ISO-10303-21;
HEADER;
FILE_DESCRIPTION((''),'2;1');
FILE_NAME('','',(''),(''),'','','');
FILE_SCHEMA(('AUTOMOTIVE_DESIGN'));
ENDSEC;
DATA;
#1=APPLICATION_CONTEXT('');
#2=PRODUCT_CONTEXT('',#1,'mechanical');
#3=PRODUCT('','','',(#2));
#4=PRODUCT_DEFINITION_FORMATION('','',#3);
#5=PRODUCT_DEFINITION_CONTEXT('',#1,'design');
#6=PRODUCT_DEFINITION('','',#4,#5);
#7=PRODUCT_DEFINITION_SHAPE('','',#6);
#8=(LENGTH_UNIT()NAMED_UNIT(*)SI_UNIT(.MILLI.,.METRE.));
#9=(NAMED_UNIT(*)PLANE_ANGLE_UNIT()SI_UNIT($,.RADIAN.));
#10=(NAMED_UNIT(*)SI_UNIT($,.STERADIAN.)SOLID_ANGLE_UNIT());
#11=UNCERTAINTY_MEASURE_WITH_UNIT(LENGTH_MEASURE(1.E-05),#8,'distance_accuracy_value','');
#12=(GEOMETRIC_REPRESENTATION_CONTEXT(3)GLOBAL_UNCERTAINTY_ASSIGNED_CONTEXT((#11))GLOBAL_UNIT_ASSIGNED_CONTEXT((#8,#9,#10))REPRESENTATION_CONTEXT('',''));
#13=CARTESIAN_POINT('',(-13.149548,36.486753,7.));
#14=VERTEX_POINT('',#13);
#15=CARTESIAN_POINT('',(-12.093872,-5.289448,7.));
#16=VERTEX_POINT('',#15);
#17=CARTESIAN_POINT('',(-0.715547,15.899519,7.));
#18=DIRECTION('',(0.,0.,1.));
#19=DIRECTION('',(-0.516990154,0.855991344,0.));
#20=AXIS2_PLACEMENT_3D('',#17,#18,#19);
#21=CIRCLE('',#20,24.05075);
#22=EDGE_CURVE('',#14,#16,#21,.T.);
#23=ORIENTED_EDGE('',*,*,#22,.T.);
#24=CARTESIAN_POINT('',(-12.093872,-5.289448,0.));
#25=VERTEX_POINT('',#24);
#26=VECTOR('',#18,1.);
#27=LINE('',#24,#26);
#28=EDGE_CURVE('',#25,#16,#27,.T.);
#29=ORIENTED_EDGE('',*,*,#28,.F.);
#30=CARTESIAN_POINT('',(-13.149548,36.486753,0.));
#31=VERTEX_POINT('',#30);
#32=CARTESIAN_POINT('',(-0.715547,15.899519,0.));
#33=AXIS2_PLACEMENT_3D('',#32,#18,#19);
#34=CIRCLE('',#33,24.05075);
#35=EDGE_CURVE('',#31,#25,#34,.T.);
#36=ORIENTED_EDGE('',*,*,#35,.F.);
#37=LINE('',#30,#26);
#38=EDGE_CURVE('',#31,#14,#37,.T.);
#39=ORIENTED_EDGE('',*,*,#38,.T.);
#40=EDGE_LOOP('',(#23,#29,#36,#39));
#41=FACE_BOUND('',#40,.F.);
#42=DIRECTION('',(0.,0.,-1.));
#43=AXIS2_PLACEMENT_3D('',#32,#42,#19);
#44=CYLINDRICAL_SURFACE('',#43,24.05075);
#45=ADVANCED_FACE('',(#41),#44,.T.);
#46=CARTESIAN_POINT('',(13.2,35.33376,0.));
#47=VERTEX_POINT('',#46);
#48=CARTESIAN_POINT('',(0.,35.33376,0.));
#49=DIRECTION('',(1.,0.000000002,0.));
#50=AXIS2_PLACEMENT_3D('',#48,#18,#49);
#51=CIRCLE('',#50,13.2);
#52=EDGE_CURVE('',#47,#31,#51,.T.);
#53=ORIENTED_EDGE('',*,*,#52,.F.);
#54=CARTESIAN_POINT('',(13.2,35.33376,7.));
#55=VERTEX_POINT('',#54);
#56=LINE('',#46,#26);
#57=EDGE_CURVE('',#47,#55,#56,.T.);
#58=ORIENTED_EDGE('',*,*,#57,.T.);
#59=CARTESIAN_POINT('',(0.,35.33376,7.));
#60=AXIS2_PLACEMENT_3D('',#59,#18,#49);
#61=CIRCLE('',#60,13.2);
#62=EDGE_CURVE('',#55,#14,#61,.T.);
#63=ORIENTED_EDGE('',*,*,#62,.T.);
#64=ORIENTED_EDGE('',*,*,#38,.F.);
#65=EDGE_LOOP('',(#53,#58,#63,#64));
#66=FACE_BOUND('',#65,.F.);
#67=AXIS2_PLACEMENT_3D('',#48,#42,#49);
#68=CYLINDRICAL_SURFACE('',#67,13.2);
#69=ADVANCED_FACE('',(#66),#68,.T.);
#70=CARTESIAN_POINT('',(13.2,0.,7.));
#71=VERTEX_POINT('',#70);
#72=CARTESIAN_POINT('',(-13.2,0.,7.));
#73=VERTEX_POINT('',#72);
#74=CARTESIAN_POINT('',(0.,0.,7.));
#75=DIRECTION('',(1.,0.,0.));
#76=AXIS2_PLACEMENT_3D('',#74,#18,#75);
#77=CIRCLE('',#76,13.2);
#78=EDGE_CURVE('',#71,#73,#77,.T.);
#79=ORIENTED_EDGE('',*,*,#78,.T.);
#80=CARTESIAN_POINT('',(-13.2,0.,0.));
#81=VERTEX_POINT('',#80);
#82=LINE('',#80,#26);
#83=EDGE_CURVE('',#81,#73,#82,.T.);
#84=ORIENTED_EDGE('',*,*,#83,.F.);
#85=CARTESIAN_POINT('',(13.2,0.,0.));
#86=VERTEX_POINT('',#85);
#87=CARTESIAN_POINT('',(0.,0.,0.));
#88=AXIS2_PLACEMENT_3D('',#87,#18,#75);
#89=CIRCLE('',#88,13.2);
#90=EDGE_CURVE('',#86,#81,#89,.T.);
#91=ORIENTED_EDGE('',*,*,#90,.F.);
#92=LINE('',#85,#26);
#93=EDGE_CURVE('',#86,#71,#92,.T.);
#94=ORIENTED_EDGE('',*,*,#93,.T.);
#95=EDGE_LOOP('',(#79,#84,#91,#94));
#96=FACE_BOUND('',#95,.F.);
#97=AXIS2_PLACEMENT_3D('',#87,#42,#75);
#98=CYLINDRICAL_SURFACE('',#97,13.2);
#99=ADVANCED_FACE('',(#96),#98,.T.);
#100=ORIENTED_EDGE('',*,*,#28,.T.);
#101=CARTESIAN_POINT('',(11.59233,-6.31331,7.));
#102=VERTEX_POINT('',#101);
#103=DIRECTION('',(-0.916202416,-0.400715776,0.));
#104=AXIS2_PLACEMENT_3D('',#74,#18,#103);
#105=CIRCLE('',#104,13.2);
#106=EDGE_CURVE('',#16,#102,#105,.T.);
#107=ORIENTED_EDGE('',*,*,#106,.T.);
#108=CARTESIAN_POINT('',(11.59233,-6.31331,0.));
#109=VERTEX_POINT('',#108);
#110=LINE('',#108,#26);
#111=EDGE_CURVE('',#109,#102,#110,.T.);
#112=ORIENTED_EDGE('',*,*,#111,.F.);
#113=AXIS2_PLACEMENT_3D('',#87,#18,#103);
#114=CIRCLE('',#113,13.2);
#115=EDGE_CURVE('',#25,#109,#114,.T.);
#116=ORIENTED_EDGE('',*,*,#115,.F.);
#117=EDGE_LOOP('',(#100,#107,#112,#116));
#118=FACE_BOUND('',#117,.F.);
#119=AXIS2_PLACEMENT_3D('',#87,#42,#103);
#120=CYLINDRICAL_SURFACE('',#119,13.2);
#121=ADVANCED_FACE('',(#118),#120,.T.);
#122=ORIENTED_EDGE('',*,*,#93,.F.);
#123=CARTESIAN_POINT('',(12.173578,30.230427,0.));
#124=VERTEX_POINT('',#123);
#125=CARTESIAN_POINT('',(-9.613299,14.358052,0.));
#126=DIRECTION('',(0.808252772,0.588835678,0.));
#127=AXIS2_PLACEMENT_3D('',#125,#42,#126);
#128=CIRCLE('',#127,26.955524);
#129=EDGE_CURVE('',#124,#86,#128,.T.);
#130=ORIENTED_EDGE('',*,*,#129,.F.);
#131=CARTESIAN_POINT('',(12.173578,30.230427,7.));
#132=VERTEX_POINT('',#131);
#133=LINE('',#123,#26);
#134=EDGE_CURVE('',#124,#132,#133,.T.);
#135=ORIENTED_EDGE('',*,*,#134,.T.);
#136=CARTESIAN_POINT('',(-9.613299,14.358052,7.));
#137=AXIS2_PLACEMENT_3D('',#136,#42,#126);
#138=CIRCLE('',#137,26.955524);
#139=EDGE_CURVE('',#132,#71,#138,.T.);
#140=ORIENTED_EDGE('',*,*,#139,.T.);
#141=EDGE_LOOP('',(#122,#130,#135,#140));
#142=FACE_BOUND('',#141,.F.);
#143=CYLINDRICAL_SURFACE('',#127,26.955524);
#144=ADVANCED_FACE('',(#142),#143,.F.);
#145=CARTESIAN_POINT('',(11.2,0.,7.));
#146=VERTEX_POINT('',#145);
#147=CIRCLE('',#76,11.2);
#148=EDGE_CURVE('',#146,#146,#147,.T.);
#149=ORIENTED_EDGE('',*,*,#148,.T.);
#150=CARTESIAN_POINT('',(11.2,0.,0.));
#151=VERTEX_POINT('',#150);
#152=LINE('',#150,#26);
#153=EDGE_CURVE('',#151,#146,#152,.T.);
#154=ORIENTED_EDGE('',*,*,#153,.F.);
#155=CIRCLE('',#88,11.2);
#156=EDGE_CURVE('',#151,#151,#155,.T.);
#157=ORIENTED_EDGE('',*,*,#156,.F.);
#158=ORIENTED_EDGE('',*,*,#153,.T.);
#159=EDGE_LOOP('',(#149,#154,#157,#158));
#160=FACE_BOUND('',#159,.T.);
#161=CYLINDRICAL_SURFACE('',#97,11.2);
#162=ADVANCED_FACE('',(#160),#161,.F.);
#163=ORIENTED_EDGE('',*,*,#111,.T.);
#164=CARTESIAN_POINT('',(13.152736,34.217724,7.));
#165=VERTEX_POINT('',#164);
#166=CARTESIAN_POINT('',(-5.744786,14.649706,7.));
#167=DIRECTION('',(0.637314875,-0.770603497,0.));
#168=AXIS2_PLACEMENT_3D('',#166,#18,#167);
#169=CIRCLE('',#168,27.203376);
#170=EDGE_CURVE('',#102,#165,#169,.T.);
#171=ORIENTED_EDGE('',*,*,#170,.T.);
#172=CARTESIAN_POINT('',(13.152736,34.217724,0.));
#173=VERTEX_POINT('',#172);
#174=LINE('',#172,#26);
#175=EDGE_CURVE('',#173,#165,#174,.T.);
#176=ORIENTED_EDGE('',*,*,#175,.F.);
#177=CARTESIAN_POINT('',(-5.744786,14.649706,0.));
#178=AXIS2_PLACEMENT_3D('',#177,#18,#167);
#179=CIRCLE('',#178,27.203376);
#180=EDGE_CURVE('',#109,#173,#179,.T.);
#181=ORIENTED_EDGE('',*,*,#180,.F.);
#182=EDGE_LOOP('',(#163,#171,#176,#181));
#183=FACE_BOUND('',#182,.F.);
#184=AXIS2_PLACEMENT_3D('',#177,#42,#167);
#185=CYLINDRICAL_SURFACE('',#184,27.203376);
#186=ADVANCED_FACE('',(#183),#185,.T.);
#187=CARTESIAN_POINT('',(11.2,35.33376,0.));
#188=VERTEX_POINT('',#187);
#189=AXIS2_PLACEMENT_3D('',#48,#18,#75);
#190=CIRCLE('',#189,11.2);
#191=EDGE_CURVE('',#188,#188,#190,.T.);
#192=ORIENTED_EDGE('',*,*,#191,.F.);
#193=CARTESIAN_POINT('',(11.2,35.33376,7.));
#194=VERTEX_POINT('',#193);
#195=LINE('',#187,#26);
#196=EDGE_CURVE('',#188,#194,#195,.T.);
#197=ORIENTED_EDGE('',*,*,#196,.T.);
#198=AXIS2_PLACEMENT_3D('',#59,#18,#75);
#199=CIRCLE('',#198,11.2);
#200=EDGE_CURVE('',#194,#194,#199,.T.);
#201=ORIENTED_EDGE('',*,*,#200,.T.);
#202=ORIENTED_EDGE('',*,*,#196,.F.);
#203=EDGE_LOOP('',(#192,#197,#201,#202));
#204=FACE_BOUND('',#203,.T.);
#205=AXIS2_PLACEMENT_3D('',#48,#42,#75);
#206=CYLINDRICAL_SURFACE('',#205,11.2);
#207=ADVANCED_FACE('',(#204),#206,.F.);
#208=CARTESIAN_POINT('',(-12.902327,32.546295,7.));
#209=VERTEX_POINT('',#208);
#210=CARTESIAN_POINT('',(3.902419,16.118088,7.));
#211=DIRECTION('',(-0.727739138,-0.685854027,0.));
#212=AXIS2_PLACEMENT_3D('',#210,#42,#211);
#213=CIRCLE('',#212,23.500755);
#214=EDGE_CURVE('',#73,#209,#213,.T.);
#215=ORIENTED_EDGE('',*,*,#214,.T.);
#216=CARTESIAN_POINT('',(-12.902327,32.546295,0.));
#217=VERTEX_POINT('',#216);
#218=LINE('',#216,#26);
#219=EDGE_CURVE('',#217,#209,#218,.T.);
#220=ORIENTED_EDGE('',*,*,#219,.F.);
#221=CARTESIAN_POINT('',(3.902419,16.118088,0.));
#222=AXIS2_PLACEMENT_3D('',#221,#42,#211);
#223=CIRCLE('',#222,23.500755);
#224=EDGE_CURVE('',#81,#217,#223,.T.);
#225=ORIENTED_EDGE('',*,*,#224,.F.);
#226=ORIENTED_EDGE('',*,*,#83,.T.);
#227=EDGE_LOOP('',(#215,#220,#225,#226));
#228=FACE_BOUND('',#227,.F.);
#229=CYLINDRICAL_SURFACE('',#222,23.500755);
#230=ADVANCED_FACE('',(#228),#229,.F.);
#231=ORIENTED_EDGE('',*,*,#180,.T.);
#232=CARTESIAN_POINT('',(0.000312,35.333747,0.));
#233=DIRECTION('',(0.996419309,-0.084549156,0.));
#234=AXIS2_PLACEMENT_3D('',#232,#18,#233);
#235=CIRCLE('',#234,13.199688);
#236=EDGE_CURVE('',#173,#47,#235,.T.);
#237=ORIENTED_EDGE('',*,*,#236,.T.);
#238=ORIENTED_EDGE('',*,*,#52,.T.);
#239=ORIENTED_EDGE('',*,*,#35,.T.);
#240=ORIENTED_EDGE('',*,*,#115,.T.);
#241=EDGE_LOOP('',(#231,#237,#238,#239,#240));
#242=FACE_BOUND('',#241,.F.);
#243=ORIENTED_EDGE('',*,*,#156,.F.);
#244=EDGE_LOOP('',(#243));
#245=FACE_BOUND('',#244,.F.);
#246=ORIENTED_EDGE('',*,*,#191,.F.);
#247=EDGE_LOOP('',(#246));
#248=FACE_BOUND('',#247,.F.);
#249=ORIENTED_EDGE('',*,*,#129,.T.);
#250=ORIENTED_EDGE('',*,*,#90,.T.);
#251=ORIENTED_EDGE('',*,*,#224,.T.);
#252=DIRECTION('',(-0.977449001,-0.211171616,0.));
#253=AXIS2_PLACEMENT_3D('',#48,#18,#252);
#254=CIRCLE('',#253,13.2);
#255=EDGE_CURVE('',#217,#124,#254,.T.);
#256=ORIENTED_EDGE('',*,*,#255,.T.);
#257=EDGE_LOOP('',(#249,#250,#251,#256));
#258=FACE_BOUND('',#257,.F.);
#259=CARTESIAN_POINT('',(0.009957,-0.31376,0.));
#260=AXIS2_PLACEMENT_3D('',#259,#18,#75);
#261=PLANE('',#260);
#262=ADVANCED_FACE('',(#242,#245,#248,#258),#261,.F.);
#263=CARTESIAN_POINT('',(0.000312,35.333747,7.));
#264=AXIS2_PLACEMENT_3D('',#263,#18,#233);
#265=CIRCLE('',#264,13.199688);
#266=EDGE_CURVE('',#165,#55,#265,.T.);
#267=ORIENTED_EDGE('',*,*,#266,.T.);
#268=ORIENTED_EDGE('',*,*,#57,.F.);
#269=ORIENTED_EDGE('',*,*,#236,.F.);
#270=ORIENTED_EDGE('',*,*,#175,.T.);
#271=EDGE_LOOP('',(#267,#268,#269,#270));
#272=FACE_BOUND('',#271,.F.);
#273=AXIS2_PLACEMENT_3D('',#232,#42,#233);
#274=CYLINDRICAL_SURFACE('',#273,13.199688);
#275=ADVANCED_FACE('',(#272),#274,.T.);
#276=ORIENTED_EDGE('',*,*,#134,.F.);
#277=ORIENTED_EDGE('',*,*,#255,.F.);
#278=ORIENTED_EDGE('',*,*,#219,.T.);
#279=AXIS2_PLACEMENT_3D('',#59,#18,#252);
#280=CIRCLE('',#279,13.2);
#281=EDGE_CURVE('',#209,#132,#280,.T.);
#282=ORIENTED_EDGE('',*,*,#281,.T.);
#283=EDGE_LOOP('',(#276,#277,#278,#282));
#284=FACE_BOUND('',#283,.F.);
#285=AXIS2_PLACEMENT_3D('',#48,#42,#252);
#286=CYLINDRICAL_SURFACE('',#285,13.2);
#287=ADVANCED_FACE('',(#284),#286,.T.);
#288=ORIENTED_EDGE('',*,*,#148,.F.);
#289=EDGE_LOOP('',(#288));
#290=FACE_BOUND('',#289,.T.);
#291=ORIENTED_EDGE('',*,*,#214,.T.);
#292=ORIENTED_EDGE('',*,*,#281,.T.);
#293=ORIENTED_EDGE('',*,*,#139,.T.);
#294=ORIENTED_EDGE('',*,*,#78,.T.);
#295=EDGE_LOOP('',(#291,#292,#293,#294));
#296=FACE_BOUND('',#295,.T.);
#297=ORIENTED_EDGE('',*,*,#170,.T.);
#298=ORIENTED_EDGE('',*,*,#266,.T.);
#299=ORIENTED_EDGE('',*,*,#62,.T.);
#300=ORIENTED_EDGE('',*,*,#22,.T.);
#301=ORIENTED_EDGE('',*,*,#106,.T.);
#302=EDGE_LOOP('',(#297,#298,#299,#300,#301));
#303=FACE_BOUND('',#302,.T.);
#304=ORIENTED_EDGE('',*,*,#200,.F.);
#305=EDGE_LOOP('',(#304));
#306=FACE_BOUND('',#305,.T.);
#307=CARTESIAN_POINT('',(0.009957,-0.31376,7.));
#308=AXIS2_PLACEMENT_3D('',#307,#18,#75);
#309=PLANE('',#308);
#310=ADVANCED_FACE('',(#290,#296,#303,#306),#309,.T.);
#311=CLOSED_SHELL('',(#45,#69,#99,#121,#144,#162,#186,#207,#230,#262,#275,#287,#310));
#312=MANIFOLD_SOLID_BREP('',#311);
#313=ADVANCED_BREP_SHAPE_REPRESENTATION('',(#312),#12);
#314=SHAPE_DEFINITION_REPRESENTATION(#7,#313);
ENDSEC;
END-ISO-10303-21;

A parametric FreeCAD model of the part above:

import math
import FreeCAD as App
import Part
import Sketcher
Q = App.Units.Quantity

doc = App.newDocument("Part")
params = doc.addObject("Spreadsheet::Sheet", "Params")
for row, (alias, value) in enumerate([
    ("sketch1_diameter", "22.4 mm"),
    ("sketch1_diameter2", "22.4 mm"),
    ("sketch1_radius", "13.2 mm"),
    ("sketch1_radius2", "13.2 mm"),
    ("sketch1_radius3", "13.2 mm"),
    ("pad1_length", "7 mm"),
], start=1):
    params.set(f"A{row}", alias)
    params.set(f"B{row}", "=" + value)
    params.setAlias(f"B{row}", alias)

body = doc.addObject("PartDesign::Body", "Body")

# Sketch on XY plane
sketch1 = body.newObject("Sketcher::SketchObject", "Sketch")
sketch1.AttachmentSupport = (doc.getObject("XY_Plane"), [""])
sketch1.MapMode = "FlatFace"
sketch1.addGeometry([
    Part.ArcOfCircle(Part.Circle(App.Vector(0, 0, 0), App.Vector(0, 0, 1), 13.2), math.radians(-156.377067), math.radians(-28.573197)),  # 0
    Part.ArcOfCircle(Part.Circle(App.Vector(-5.744786, 14.649706, 0), App.Vector(0, 0, 1), 27.203376), math.radians(-50.408113), math.radians(45.998626)),  # 1
    Part.ArcOfCircle(Part.Circle(App.Vector(0.000312, 35.333747, 0), App.Vector(0, 0, 1), 13.199688), math.radians(-4.8501), math.radians(0.000059)),  # 2
    Part.ArcOfCircle(Part.Circle(App.Vector(0, 35.33376, 0), App.Vector(0, 0, 1), 13.2), math.radians(0), math.radians(174.988945)),  # 3
    Part.ArcOfCircle(Part.Circle(App.Vector(-0.715547, 15.899519, 0), App.Vector(0, 0, 1), 24.05075), math.radians(121.130573), math.radians(241.764516)),  # 4
    Part.Circle(App.Vector(0, 0, 0), App.Vector(0, 0, 1), 11.2),  # 5
    Part.ArcOfCircle(Part.Circle(App.Vector(-9.613299, 14.358052, 0), App.Vector(0, 0, 1), 26.955524), math.radians(-32.185163), math.radians(36.074428)),  # 6
    Part.ArcOfCircle(Part.Circle(App.Vector(0, 0, 0), App.Vector(0, 0, 1), 13.2), math.radians(0), math.radians(180)),  # 7
    Part.ArcOfCircle(Part.Circle(App.Vector(3.902419, 16.118088, 0), App.Vector(0, 0, 1), 23.500755), math.radians(135.64915), math.radians(223.302809)),  # 8
    Part.ArcOfCircle(Part.Circle(App.Vector(0, 35.33376, 0), App.Vector(0, 0, 1), 13.2), math.radians(-167.808979), math.radians(-22.74411)),  # 9
    Part.Circle(App.Vector(0, 35.33376, 0), App.Vector(0, 0, 1), 11.2),  # 10
], False)
sketch1.addConstraint([
    Sketcher.Constraint("Coincident", 0, 2, 1, 1),
    Sketcher.Constraint("Coincident", 1, 2, 2, 1),
    Sketcher.Constraint("Coincident", 2, 2, 3, 1),
    Sketcher.Constraint("Coincident", 3, 2, 4, 1),
    Sketcher.Constraint("Coincident", 4, 2, 0, 1),
    Sketcher.Constraint("Coincident", 6, 1, 7, 1),
    Sketcher.Constraint("Coincident", 7, 2, 8, 2),
    Sketcher.Constraint("Coincident", 8, 1, 9, 1),
    Sketcher.Constraint("Coincident", 9, 2, 6, 2),
    Sketcher.Constraint("Coincident", 0, 3, -1, 1),
    Sketcher.Constraint("Coincident", 5, 3, -1, 1),
    Sketcher.Constraint("Coincident", 7, 3, -1, 1),
    Sketcher.Constraint("Coincident", 9, 3, 3, 3),
    Sketcher.Constraint("Coincident", 10, 3, 3, 3),
    Sketcher.Constraint("PointOnObject", 3, 3, -2),
    Sketcher.Constraint("PointOnObject", 6, 1, -1),
    Sketcher.Constraint("PointOnObject", 7, 2, -1),
    Sketcher.Constraint("Diameter", 5, Q("22.4 mm")),
    Sketcher.Constraint("Diameter", 10, Q("22.4 mm")),
    Sketcher.Constraint("Radius", 0, Q("13.2 mm")),
    Sketcher.Constraint("Radius", 3, Q("13.2 mm")),
    Sketcher.Constraint("Radius", 7, Q("13.2 mm")),
    Sketcher.Constraint("Radius", 9, Q("13.2 mm")),
    Sketcher.Constraint("Radius", 2, Q("13.199688 mm")),
    Sketcher.Constraint("Radius", 4, Q("24.05075 mm")),
    Sketcher.Constraint("Radius", 1, Q("27.203376 mm")),
    Sketcher.Constraint("Radius", 6, Q("26.955524 mm")),
    Sketcher.Constraint("Radius", 8, Q("23.500755 mm")),
    Sketcher.Constraint("DistanceX", 6, 3, -1, 1, Q("9.613299 mm")),
    Sketcher.Constraint("DistanceY", 6, 3, 3, 2, Q("22.128701 mm")),
    Sketcher.Constraint("DistanceY", 4, 2, 6, 3, Q("19.6475 mm")),
    Sketcher.Constraint("DistanceY", -1, 1, 3, 3, Q("35.33376 mm")),
    Sketcher.Constraint("DistanceX", -1, 1, 8, 3, Q("3.902419 mm")),
    Sketcher.Constraint("DistanceX", -1, 1, 0, 2, Q("11.59233 mm")),
    Sketcher.Constraint("DistanceY", -1, 1, 2, 2, Q("35.33376 mm")),
    Sketcher.Constraint("DistanceY", 1, 3, 2, 3, Q("20.68404 mm")),
    Sketcher.Constraint("DistanceX", 1, 3, 4, 3, Q("5.029239 mm")),
])
sketch1.setExpression("Constraints[17]", "Params.sketch1_diameter")
sketch1.setExpression("Constraints[18]", "Params.sketch1_diameter2")
sketch1.setExpression("Constraints[19]", "Params.sketch1_radius")
sketch1.setExpression("Constraints[20]", "Params.sketch1_radius2")
sketch1.setExpression("Constraints[21]", "Params.sketch1_radius3")
pad1 = body.newObject("PartDesign::Pad", "Pad")
pad1.Profile = sketch1
pad1.setExpression("Length", "Params.pad1_length")

doc.recompute()
